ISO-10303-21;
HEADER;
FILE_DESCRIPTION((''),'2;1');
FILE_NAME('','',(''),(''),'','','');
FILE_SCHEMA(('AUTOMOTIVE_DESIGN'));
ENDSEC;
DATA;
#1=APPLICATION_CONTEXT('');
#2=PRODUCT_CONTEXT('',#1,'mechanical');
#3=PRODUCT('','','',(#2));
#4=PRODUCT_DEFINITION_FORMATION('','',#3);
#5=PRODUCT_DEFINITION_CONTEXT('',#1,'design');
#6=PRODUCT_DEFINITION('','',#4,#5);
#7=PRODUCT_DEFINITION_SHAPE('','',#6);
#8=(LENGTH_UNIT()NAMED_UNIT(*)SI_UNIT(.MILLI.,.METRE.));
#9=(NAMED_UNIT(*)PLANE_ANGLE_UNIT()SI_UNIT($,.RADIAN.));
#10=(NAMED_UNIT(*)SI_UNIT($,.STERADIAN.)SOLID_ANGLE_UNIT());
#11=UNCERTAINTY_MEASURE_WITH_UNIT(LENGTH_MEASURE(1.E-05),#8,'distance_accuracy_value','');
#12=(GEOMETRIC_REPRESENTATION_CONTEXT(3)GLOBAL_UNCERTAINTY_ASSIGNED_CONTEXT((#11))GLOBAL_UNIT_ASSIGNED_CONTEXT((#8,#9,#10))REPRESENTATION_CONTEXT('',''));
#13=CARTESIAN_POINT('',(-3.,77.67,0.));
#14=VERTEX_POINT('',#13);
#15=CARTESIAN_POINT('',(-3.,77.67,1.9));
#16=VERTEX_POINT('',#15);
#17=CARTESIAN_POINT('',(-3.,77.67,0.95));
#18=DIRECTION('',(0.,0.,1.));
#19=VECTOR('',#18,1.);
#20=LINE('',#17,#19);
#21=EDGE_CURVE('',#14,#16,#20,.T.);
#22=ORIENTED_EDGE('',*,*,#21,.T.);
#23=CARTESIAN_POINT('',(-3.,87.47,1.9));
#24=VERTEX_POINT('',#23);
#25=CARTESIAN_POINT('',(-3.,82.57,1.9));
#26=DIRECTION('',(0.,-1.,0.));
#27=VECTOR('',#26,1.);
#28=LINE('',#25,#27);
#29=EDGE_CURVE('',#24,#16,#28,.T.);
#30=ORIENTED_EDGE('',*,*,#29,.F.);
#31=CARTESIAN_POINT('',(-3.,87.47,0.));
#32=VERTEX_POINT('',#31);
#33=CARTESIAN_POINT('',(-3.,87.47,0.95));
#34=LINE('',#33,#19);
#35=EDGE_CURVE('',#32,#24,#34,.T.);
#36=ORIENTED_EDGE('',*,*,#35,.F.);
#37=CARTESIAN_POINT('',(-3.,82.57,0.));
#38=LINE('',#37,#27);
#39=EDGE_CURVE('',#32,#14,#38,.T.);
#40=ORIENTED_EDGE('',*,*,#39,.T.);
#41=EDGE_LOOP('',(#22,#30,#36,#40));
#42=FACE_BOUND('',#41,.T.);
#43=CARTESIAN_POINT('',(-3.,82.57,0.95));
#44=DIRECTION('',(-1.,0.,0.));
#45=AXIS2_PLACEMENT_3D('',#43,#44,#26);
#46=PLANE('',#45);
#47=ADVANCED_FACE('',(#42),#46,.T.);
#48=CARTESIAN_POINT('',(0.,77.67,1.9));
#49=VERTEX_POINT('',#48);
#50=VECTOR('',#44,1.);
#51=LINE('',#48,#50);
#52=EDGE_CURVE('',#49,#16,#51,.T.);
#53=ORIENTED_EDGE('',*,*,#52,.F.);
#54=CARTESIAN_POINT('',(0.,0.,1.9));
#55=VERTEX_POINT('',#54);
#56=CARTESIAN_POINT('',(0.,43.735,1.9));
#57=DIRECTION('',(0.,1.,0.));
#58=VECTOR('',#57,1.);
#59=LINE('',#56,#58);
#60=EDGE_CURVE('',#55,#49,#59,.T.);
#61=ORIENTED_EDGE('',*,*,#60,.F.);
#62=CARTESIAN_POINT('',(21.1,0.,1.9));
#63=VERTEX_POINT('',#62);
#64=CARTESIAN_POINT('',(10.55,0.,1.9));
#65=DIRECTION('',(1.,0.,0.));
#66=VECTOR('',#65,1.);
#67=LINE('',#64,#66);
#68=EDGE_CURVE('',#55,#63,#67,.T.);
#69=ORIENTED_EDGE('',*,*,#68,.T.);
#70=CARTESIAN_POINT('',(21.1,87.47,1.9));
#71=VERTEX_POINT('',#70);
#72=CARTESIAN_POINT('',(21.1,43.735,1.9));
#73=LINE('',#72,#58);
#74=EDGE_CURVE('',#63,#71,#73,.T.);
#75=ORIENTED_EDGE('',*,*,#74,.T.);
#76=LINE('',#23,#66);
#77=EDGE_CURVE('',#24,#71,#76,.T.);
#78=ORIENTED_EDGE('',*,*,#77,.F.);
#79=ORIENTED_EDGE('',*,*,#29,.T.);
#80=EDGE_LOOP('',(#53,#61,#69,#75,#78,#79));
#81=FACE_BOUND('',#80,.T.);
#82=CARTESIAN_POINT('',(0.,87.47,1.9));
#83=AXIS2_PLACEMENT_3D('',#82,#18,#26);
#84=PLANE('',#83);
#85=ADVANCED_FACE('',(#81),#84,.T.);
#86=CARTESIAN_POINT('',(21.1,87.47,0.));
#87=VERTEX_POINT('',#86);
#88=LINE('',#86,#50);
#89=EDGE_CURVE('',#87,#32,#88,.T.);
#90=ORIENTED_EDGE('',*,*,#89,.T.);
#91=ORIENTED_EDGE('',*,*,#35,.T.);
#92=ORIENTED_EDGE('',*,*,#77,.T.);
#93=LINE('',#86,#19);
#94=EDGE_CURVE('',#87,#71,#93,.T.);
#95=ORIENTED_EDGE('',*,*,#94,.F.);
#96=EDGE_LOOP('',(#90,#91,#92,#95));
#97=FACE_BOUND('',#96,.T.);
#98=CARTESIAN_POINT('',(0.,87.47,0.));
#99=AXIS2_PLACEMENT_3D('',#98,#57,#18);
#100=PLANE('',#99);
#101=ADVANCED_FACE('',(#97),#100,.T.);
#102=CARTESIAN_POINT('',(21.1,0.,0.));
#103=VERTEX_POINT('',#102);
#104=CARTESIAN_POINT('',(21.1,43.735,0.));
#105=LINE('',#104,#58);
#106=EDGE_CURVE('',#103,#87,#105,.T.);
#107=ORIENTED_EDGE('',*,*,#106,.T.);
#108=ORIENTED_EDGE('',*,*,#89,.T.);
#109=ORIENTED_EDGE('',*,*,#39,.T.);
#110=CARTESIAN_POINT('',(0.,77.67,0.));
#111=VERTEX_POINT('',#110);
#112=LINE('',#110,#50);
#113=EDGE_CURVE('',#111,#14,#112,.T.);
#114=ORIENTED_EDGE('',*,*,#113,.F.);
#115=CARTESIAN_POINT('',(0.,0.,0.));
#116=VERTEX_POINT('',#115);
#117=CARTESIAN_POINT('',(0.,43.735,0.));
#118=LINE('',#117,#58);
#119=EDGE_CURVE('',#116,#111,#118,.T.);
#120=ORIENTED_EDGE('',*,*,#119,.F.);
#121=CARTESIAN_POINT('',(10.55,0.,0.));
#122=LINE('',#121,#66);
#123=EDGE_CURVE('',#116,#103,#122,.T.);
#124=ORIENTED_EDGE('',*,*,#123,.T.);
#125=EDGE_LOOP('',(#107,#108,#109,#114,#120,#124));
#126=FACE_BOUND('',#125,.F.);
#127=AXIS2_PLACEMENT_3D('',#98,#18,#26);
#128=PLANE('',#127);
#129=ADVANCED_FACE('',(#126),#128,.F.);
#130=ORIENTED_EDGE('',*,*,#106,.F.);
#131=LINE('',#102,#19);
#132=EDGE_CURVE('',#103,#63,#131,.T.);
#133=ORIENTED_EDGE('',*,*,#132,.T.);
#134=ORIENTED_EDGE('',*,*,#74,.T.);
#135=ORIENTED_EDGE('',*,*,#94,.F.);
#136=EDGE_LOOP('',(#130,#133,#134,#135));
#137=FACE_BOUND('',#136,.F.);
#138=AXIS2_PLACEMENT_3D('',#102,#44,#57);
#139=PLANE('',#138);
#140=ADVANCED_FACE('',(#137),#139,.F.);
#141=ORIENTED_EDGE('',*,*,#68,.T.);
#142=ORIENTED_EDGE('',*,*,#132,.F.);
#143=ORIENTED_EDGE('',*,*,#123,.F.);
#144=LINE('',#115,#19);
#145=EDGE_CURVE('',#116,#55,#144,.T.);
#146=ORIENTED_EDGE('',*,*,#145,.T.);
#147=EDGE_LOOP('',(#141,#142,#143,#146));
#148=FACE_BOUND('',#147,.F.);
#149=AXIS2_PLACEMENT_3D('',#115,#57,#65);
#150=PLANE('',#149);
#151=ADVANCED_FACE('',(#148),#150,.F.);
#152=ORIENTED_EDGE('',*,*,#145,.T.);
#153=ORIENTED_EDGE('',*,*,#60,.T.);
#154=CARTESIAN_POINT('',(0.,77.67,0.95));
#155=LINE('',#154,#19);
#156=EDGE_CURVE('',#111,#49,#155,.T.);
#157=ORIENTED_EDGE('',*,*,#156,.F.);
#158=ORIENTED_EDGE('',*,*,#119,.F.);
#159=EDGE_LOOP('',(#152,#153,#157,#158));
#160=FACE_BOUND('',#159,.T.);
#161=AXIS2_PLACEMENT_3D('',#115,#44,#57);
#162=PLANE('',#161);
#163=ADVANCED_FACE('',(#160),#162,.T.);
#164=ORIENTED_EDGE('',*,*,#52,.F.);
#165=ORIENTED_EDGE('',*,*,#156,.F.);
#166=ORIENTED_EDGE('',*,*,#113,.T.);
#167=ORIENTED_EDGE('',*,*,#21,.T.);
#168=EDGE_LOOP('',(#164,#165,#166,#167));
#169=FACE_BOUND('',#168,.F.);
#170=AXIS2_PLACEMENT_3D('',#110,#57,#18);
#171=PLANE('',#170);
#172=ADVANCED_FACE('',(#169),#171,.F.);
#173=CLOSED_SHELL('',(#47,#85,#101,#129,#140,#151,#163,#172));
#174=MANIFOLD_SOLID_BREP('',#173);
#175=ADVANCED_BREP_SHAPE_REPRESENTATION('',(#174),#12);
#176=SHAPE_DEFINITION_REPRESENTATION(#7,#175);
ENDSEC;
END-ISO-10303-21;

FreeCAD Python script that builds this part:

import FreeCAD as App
import Part
import Sketcher
from FreeCAD import Vector


def add_polygon(sketch, points):
    """Adds a closed chain of lines whose ends are joined by coincident constraints."""
    first, n = sketch.GeometryCount, len(points)
    for a, b in zip(points, points[1:] + points[:1]):
        sketch.addGeometry(Part.LineSegment(App.Vector(*a, 0), App.Vector(*b, 0)), False)
    for i in range(n):
        sketch.addConstraint(Sketcher.Constraint("Coincident", first + i, 2, first + (i + 1) % n, 1))

doc = App.newDocument("Part")
body = doc.addObject("PartDesign::Body", "Body")

# Sketch on XY plane
sketch1 = doc.addObject("Sketcher::SketchObject", "Sketch")
body.addObject(sketch1)
sketch1.AttachmentSupport = (doc.XY_Plane, [""])
sketch1.MapMode = "FlatFace"
add_polygon(sketch1, [(0, 87.47), (0, 0), (21.1, 0), (21.1, 87.47)])  # lines 0-3
sketch1.addConstraint([
    Sketcher.Constraint("Vertical", 0),
    Sketcher.Constraint("Horizontal", 1),
    Sketcher.Constraint("Vertical", 2),
    Sketcher.Constraint("Horizontal", 3),
    Sketcher.Constraint("Coincident", 0, 2, -1, 1),
    Sketcher.Constraint("DistanceX", 1, 1, 1, 2, 21.1),
    Sketcher.Constraint("DistanceY", 0, 2, 0, 1, 87.47),
])
pad1 = doc.addObject("PartDesign::Pad", "Pad")
body.addObject(pad1)
pad1.Profile = sketch1
pad1.Length = 1.9

# Sketch on YZ plane
sketch2 = doc.addObject("Sketcher::SketchObject", "Sketch001")
body.addObject(sketch2)
sketch2.AttachmentSupport = (doc.YZ_Plane, [""])
sketch2.MapMode = "FlatFace"
add_polygon(sketch2, [(87.47, 1.9), (87.47, 0), (77.67, 0), (77.67, 1.9)])  # lines 0-3
sketch2.addConstraint([
    Sketcher.Constraint("Vertical", 0),
    Sketcher.Constraint("Horizontal", 1),
    Sketcher.Constraint("Vertical", 2),
    Sketcher.Constraint("Horizontal", 3),
    Sketcher.Constraint("PointOnObject", 0, 2, -1),
    Sketcher.Constraint("DistanceX", 1, 2, 1, 1, 9.8),
    Sketcher.Constraint("DistanceY", 0, 2, 0, 1, 1.9),
    Sketcher.Constraint("DistanceX", -1, 1, 0, 2, 87.47),
])
pad2 = doc.addObject("PartDesign::Pad", "Pad001")
body.addObject(pad2)
pad2.Profile = sketch2
pad2.Length = 3
pad2.Reversed = True
body2 = doc.addObject("PartDesign::Body", "Body001")

# Sketch on XY plane
sketch3 = doc.addObject("Sketcher::SketchObject", "Sketch002")
body2.addObject(sketch3)
sketch3.AttachmentSupport = (doc.getObject("XY_Plane001"), [""])
sketch3.MapMode = "FlatFace"
add_polygon(sketch3, [(27.752641, 86.648047), (27.752641, 2.878047), (45.352641, 2.878047), (45.352641, 86.648047)])  # lines 0-3
add_polygon(sketch3, [(43.352641, 4.878047), (29.752641, 4.878047), (29.752641, 84.648047), (43.352641, 84.648047)])  # lines 4-7
sketch3.addConstraint([
    Sketcher.Constraint("Vertical", 0),
    Sketcher.Constraint("Horizontal", 1),
    Sketcher.Constraint("Vertical", 2),
    Sketcher.Constraint("Horizontal", 3),
    Sketcher.Constraint("Horizontal", 4),
    Sketcher.Constraint("Vertical", 5),
    Sketcher.Constraint("Horizontal", 6),
    Sketcher.Constraint("Vertical", 7),
    Sketcher.Constraint("DistanceX", 1, 1, 1, 2, 17.6),
    Sketcher.Constraint("DistanceX", 4, 2, 4, 1, 13.6),
    Sketcher.Constraint("DistanceX", 0, 2, 4, 2, 2.0),
    Sketcher.Constraint("DistanceY", 0, 2, 4, 2, 2.0),
    Sketcher.Constraint("DistanceY", 5, 2, 3, 2, 2.0),
    Sketcher.Constraint("DistanceY", 0, 2, 0, 1, 83.77),
    Sketcher.Constraint("DistanceX", -1, 1, 0, 2, 27.752641),
    Sketcher.Constraint("DistanceY", -1, 1, 0, 2, 2.878047),
])
pad3 = doc.addObject("PartDesign::Pad", "Pad002")
body2.addObject(pad3)
pad3.Profile = sketch3
pad3.Length = 0.8
body2.Visibility = False

doc.recompute()
